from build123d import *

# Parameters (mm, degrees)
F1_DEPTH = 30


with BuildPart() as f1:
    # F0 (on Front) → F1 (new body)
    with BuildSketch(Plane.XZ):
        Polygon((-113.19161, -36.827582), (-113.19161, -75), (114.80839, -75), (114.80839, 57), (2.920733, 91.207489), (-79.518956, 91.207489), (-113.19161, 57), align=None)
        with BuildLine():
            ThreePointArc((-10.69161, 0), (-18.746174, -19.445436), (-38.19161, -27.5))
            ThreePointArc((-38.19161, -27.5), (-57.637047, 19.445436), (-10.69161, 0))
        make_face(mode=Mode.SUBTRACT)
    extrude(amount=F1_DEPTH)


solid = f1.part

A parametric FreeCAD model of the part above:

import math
import FreeCAD as App
import Part
import Sketcher
from FreeCAD import Vector
Q = App.Units.Quantity

doc = App.newDocument("Part")
body = doc.addObject("PartDesign::Body", "Body")

sketch1 = body.newObject("Sketcher::SketchObject", "Sketch")
sketch1.AttachmentSupport = (doc.getObject("XZ_Plane"), [""])
sketch1.MapMode = "FlatFace"
sketch1.addGeometry([
    Part.LineSegment(Vector(-113, -75, 0), Vector(115, -75, 0)),
    Part.LineSegment(Vector(115, -75, 0), Vector(115, 57, 0)),
    Part.LineSegment(Vector(115, 57, 0), Vector(3, 91, 0)),
    Part.LineSegment(Vector(3, 91, 0), Vector(-80, 91, 0)),
    Part.LineSegment(Vector(-80, 91, 0), Vector(-113, 57, 0)),
    Part.LineSegment(Vector(-113, 57, 0), Vector(-113, -75, 0)),
    Part.ArcOfCircle(Part.Circle(Vector(-38, 0, 0), Vector(0, 0, 1), 28), math.radians(0), math.radians(270)),
    Part.ArcOfCircle(Part.Circle(Vector(-38, 0, 0), Vector(0, 0, 1), 28), math.radians(-90), math.radians(0)),
], False)
sketch1.addConstraint([
    Sketcher.Constraint("Coincident", 0, 2, 1, 1),
    Sketcher.Constraint("Coincident", 1, 2, 2, 1),
    Sketcher.Constraint("Coincident", 2, 2, 3, 1),
    Sketcher.Constraint("Coincident", 3, 2, 4, 1),
    Sketcher.Constraint("Coincident", 4, 2, 5, 1),
    Sketcher.Constraint("Coincident", 5, 2, 0, 1),
    Sketcher.Constraint("Tangent", 6, 1, 7, 2),
    Sketcher.Constraint("Coincident", 7, 1, 6, 2),
    Sketcher.Constraint("Horizontal", 0),
    Sketcher.Constraint("Vertical", 1),
    Sketcher.Constraint("Horizontal", 3),
    Sketcher.Constraint("Vertical", 5),
    Sketcher.Constraint("PointOnObject", 6, 3, -1),
    Sketcher.Constraint("PointOnObject", 6, 1, -1),
    Sketcher.Constraint("Horizontal", 1, 2, 4, 2),
    Sketcher.Constraint("Vertical", 6, 3, 7, 1),
    Sketcher.Constraint("Radius", 6, 27.5),
    Sketcher.Constraint("DistanceX", 0, 1, 0, 2, 228.0),
    Sketcher.Constraint("DistanceY", 1, 1, 1, 2, 132.0),
    Sketcher.Constraint("Angle", 2, Q("163 deg")),
    Sketcher.Constraint("Distance", 2, 117.0),
    Sketcher.Constraint("Distance", 4, 47.999999),
    Sketcher.Constraint("DistanceY", 0, 2, -1, 1, 75.0),
    Sketcher.Constraint("DistanceX", 6, 3, 0, 2, 153.0),
    Sketcher.Constraint("DistanceX", 6, 3, -1, 1, 38.19161),
])
pad1 = body.newObject("PartDesign::Pad", "Pad")
pad1.Profile = sketch1
pad1.Length = 30

doc.recompute()
